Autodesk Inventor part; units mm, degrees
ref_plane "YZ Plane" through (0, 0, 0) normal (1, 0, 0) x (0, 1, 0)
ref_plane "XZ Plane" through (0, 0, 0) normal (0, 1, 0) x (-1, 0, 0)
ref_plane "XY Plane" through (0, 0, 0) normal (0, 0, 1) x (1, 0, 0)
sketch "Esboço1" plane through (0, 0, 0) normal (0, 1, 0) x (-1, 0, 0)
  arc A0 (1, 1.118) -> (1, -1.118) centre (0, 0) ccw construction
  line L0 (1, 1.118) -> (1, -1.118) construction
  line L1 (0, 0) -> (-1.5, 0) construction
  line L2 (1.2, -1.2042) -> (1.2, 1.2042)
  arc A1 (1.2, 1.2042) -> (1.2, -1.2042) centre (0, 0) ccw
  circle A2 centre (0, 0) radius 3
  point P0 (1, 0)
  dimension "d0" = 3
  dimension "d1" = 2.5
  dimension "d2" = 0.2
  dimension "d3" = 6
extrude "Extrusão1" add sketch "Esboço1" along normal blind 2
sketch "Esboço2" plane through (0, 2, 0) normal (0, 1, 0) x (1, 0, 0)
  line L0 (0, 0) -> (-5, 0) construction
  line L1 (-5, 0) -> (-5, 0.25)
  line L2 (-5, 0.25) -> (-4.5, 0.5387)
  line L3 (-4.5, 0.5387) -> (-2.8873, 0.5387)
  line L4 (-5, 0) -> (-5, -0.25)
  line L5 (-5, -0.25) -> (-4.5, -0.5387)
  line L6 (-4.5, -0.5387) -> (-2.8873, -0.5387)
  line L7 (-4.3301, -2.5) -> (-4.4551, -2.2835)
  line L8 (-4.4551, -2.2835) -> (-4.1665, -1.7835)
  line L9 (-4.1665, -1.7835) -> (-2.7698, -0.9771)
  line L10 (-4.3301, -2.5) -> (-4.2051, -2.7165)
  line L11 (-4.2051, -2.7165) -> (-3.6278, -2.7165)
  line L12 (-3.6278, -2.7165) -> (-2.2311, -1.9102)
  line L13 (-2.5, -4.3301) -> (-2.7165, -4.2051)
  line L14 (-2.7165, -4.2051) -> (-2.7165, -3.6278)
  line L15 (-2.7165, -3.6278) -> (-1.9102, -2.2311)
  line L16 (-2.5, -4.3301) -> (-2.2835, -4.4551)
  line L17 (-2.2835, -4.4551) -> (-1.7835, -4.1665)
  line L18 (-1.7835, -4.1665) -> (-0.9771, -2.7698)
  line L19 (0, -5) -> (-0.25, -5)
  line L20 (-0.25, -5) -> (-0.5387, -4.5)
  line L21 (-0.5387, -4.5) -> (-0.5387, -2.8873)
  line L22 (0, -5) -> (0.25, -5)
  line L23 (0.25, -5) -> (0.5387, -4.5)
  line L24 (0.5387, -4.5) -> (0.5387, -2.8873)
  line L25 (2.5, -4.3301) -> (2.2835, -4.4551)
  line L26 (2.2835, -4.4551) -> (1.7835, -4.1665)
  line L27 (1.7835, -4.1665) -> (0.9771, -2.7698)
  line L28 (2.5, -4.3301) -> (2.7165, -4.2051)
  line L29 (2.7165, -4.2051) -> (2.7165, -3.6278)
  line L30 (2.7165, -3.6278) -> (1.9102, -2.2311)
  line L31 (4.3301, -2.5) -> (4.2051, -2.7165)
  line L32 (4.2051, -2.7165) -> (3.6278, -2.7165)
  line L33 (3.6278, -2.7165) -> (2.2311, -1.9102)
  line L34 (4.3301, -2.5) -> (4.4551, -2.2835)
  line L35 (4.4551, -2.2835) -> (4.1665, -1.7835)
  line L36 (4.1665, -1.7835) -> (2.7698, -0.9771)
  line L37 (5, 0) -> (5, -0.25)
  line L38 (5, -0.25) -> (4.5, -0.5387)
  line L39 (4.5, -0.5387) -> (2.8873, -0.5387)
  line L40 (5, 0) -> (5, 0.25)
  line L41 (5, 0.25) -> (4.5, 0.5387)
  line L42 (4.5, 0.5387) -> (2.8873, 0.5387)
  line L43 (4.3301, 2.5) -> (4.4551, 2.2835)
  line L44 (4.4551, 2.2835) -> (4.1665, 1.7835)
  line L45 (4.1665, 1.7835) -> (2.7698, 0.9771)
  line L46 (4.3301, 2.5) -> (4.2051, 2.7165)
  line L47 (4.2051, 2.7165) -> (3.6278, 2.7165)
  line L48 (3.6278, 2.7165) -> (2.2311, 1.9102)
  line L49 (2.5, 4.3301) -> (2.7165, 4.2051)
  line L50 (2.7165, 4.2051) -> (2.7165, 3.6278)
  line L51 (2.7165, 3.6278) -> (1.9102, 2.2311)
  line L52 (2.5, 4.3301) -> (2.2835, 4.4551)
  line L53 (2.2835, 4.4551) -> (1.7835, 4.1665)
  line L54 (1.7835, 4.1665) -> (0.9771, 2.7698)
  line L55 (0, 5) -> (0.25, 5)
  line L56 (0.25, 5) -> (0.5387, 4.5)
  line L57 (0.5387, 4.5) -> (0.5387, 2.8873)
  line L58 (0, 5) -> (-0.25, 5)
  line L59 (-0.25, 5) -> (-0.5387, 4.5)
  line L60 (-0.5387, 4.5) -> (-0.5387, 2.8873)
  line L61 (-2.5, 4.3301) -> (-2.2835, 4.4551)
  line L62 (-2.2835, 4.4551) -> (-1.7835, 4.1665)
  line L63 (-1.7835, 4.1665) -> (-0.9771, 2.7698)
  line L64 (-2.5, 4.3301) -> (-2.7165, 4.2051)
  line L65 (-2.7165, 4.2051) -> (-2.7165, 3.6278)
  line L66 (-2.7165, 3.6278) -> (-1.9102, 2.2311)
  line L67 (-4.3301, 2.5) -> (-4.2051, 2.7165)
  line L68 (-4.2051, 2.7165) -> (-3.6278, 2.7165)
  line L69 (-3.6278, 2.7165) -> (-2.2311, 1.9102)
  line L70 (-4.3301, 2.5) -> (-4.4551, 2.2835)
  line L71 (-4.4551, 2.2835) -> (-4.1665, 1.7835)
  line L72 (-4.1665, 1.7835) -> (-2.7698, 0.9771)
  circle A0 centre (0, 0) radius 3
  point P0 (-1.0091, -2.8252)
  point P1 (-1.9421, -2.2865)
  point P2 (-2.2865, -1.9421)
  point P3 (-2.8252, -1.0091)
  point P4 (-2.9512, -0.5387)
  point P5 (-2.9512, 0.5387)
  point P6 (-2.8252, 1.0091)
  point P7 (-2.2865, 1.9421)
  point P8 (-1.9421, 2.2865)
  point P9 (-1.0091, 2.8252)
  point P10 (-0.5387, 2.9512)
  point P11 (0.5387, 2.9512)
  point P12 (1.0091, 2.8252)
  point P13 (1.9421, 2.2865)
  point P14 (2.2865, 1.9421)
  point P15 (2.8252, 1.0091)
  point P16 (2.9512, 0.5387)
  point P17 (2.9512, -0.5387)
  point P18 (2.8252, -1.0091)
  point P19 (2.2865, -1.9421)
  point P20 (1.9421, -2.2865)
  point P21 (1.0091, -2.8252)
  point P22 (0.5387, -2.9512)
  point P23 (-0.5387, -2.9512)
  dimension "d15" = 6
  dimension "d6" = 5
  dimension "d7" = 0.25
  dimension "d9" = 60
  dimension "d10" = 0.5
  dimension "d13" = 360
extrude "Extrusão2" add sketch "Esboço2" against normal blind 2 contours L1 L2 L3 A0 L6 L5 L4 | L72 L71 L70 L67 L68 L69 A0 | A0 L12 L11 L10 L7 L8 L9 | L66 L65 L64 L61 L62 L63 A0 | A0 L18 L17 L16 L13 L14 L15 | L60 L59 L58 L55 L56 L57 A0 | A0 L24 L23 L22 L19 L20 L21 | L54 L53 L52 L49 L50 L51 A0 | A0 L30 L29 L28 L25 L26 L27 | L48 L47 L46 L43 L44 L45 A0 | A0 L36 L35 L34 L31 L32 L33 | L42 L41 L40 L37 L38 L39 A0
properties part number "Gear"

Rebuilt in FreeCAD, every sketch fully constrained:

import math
import FreeCAD as App
import Part
import Sketcher
from FreeCAD import Vector
Q = App.Units.Quantity

doc = App.newDocument("Part")
body = doc.addObject("PartDesign::Body", "Body")

# Sketch on XZ plane
sketch1 = body.newObject("Sketcher::SketchObject", "Sketch")
sketch1.AttachmentSupport = (doc.getObject("XZ_Plane"), [""])
sketch1.MapMode = "FlatFace"
sketch1.addGeometry([
    Part.Circle(Vector(0, 0, 0), Vector(0, 0, 1), 3),
    Part.LineSegment(Vector(-1.2, 1.2, 0), Vector(-1.2, -1.2, 0)),
    Part.ArcOfCircle(Part.Circle(Vector(0, 0, 0), Vector(0, 0, 1), 1.7), math.radians(-135), math.radians(135)),
], False)
sketch1.addConstraint([
    Sketcher.Constraint("Coincident", 1, 1, 2, 2),
    Sketcher.Constraint("Coincident", 2, 1, 1, 2),
    Sketcher.Constraint("Vertical", 1),
    Sketcher.Constraint("Coincident", 0, 3, -1, 1),
    Sketcher.Constraint("Coincident", 2, 3, -1, 1),
    Sketcher.Constraint("Diameter", 0, Q("6 mm")),
    Sketcher.Constraint("Radius", 2, Q("1.7 mm")),
    Sketcher.Constraint("DistanceX", 1, 1, -1, 1, Q("1.2 mm")),
])
pad1 = body.newObject("PartDesign::Pad", "Pad")
pad1.Profile = sketch1
pad1.Length = 2
pad1.Reversed = True

# Sketch on XZ plane
sketch2 = body.newObject("Sketcher::SketchObject", "Sketch001")
sketch2.AttachmentSupport = (doc.getObject("XZ_Plane"), [""])
sketch2.MapMode = "FlatFace"
sketch2.AttachmentOffset = App.Placement(Vector(0, 0, -2), App.Rotation())
sketch2.addGeometry([
    Part.LineSegment(Vector(-5, -0.25, 0), Vector(-5, 0.25, 0)),  # 0
    Part.LineSegment(Vector(-5, 0.25, 0), Vector(-4.5, 0.54, 0)),  # 1
    Part.LineSegment(Vector(-4.5, 0.54, 0), Vector(-2.95, 0.54, 0)),  # 2
    Part.ArcOfCircle(Part.Circle(Vector(0, 0, 0), Vector(0, 0, 1), 3), math.radians(170), math.radians(190)),  # 3
    Part.LineSegment(Vector(-2.95, -0.54, 0), Vector(-4.5, -0.54, 0)),  # 4
    Part.LineSegment(Vector(-4.5, -0.54, 0), Vector(-5, -0.25, 0)),  # 5
    Part.LineSegment(Vector(-4.17, -1.78, 0), Vector(-2.83, -1.01, 0)),  # 6
    Part.ArcOfCircle(Part.Circle(Vector(0, 0, 0), Vector(0, 0, 1), 3), math.radians(-160), math.radians(-140)),  # 7
    Part.LineSegment(Vector(-2.29, -1.94, 0), Vector(-3.63, -2.72, 0)),  # 8
    Part.LineSegment(Vector(-3.63, -2.72, 0), Vector(-4.21, -2.72, 0)),  # 9
    Part.LineSegment(Vector(-4.21, -2.72, 0), Vector(-4.46, -2.28, 0)),  # 10
    Part.LineSegment(Vector(-4.46, -2.28, 0), Vector(-4.17, -1.78, 0)),  # 11
    Part.ArcOfCircle(Part.Circle(Vector(0, 0, 0), Vector(0, 0, 1), 3), math.radians(140), math.radians(160)),  # 12
    Part.LineSegment(Vector(-2.83, 1.01, 0), Vector(-4.17, 1.78, 0)),  # 13
    Part.LineSegment(Vector(-4.17, 1.78, 0), Vector(-4.46, 2.28, 0)),  # 14
    Part.LineSegment(Vector(-4.46, 2.28, 0), Vector(-4.21, 2.72, 0)),  # 15
    Part.LineSegment(Vector(-4.21, 2.72, 0), Vector(-3.63, 2.72, 0)),  # 16
    Part.LineSegment(Vector(-3.63, 2.72, 0), Vector(-2.29, 1.94, 0)),  # 17
    Part.LineSegment(Vector(-2.72, -3.63, 0), Vector(-1.94, -2.29, 0)),  # 18
    Part.ArcOfCircle(Part.Circle(Vector(0, 0, 0), Vector(0, 0, 1), 3), math.radians(-130), math.radians(-110)),  # 19
    Part.LineSegment(Vector(-1.01, -2.83, 0), Vector(-1.78, -4.17, 0)),  # 20
    Part.LineSegment(Vector(-1.78, -4.17, 0), Vector(-2.28, -4.46, 0)),  # 21
    Part.LineSegment(Vector(-2.28, -4.46, 0), Vector(-2.72, -4.21, 0)),  # 22
    Part.LineSegment(Vector(-2.72, -4.21, 0), Vector(-2.72, -3.63, 0)),  # 23
    Part.ArcOfCircle(Part.Circle(Vector(0, 0, 0), Vector(0, 0, 1), 3), math.radians(110), math.radians(130)),  # 24
    Part.LineSegment(Vector(-1.94, 2.29, 0), Vector(-2.72, 3.63, 0)),  # 25
    Part.LineSegment(Vector(-2.72, 3.63, 0), Vector(-2.72, 4.21, 0)),  # 26
    Part.LineSegment(Vector(-2.72, 4.21, 0), Vector(-2.28, 4.46, 0)),  # 27
    Part.LineSegment(Vector(-2.28, 4.46, 0), Vector(-1.78, 4.17, 0)),  # 28
    Part.LineSegment(Vector(-1.78, 4.17, 0), Vector(-1.01, 2.83, 0)),  # 29
    Part.LineSegment(Vector(-0.54, -4.5, 0), Vector(-0.54, -2.95, 0)),  # 30
    Part.ArcOfCircle(Part.Circle(Vector(0, 0, 0), Vector(0, 0, 1), 3), math.radians(-100), math.radians(-80)),  # 31
    Part.LineSegment(Vector(0.54, -2.95, 0), Vector(0.54, -4.5, 0)),  # 32
    Part.LineSegment(Vector(0.54, -4.5, 0), Vector(0.25, -5, 0)),  # 33
    Part.LineSegment(Vector(0.25, -5, 0), Vector(-0.25, -5, 0)),  # 34
    Part.LineSegment(Vector(-0.25, -5, 0), Vector(-0.54, -4.5, 0)),  # 35
    Part.ArcOfCircle(Part.Circle(Vector(0, 0, 0), Vector(0, 0, 1), 3), math.radians(80), math.radians(100)),  # 36
    Part.LineSegment(Vector(-0.54, 2.95, 0), Vector(-0.54, 4.5, 0)),  # 37
    Part.LineSegment(Vector(-0.54, 4.5, 0), Vector(-0.25, 5, 0)),  # 38
    Part.LineSegment(Vector(-0.25, 5, 0), Vector(0.25, 5, 0)),  # 39
    Part.LineSegment(Vector(0.25, 5, 0), Vector(0.54, 4.5, 0)),  # 40
    Part.LineSegment(Vector(0.54, 4.5, 0), Vector(0.54, 2.95, 0)),  # 41
    Part.LineSegment(Vector(1.78, -4.17, 0), Vector(1.01, -2.83, 0)),  # 42
    Part.ArcOfCircle(Part.Circle(Vector(0, 0, 0), Vector(0, 0, 1), 3), math.radians(-70), math.radians(-50)),  # 43
    Part.LineSegment(Vector(1.94, -2.29, 0), Vector(2.72, -3.63, 0)),  # 44
    Part.LineSegment(Vector(2.72, -3.63, 0), Vector(2.72, -4.21, 0)),  # 45
    Part.LineSegment(Vector(2.72, -4.21, 0), Vector(2.28, -4.46, 0)),  # 46
    Part.LineSegment(Vector(2.28, -4.46, 0), Vector(1.78, -4.17, 0)),  # 47
    Part.ArcOfCircle(Part.Circle(Vector(0, 0, 0), Vector(0, 0, 1), 3), math.radians(50), math.radians(70)),  # 48
    Part.LineSegment(Vector(1.01, 2.83, 0), Vector(1.78, 4.17, 0)),  # 49
    Part.LineSegment(Vector(1.78, 4.17, 0), Vector(2.28, 4.46, 0)),  # 50
    Part.LineSegment(Vector(2.28, 4.46, 0), Vector(2.72, 4.21, 0)),  # 51
    Part.LineSegment(Vector(2.72, 4.21, 0), Vector(2.72, 3.63, 0)),  # 52
    Part.LineSegment(Vector(2.72, 3.63, 0), Vector(1.94, 2.29, 0)),  # 53
    Part.LineSegment(Vector(3.63, -2.72, 0), Vector(2.29, -1.94, 0)),  # 54
    Part.ArcOfCircle(Part.Circle(Vector(0, 0, 0), Vector(0, 0, 1), 3), math.radians(-40), math.radians(-20)),  # 55
    Part.LineSegment(Vector(2.83, -1.01, 0), Vector(4.17, -1.78, 0)),  # 56
    Part.LineSegment(Vector(4.17, -1.78, 0), Vector(4.46, -2.28, 0)),  # 57
    Part.LineSegment(Vector(4.46, -2.28, 0), Vector(4.21, -2.72, 0)),  # 58
    Part.LineSegment(Vector(4.21, -2.72, 0), Vector(3.63, -2.72, 0)),  # 59
    Part.ArcOfCircle(Part.Circle(Vector(0, 0, 0), Vector(0, 0, 1), 3), math.radians(20), math.radians(40)),  # 60
    Part.LineSegment(Vector(2.29, 1.94, 0), Vector(3.63, 2.72, 0)),  # 61
    Part.LineSegment(Vector(3.63, 2.72, 0), Vector(4.21, 2.72, 0)),  # 62
    Part.LineSegment(Vector(4.21, 2.72, 0), Vector(4.46, 2.28, 0)),  # 63
    Part.LineSegment(Vector(4.46, 2.28, 0), Vector(4.17, 1.78, 0)),  # 64
    Part.LineSegment(Vector(4.17, 1.78, 0), Vector(2.83, 1.01, 0)),  # 65
    Part.LineSegment(Vector(4.5, -0.54, 0), Vector(2.95, -0.54, 0)),  # 66
    Part.ArcOfCircle(Part.Circle(Vector(0, 0, 0), Vector(0, 0, 1), 3), math.radians(-10), math.radians(10)),  # 67
    Part.LineSegment(Vector(2.95, 0.54, 0), Vector(4.5, 0.54, 0)),  # 68
    Part.LineSegment(Vector(4.5, 0.54, 0), Vector(5, 0.25, 0)),  # 69
    Part.LineSegment(Vector(5, 0.25, 0), Vector(5, -0.25, 0)),  # 70
    Part.LineSegment(Vector(5, -0.25, 0), Vector(4.5, -0.54, 0)),  # 71
], False)
sketch2.addConstraint([
    Sketcher.Constraint("Coincident", 0, 2, 1, 1),
    Sketcher.Constraint("Coincident", 1, 2, 2, 1),
    Sketcher.Constraint("Coincident", 2, 2, 3, 1),
    Sketcher.Constraint("Coincident", 3, 2, 4, 1),
    Sketcher.Constraint("Coincident", 4, 2, 5, 1),
    Sketcher.Constraint("Coincident", 5, 2, 0, 1),
    Sketcher.Constraint("Coincident", 6, 2, 7, 1),
    Sketcher.Constraint("Coincident", 7, 2, 8, 1),
    Sketcher.Constraint("Coincident", 8, 2, 9, 1),
    Sketcher.Constraint("Coincident", 9, 2, 10, 1),
    Sketcher.Constraint("Coincident", 10, 2, 11, 1),
    Sketcher.Constraint("Coincident", 11, 2, 6, 1),
    Sketcher.Constraint("Coincident", 12, 2, 13, 1),
    Sketcher.Constraint("Coincident", 13, 2, 14, 1),
    Sketcher.Constraint("Coincident", 14, 2, 15, 1),
    Sketcher.Constraint("Coincident", 15, 2, 16, 1),
    Sketcher.Constraint("Coincident", 16, 2, 17, 1),
    Sketcher.Constraint("Coincident", 17, 2, 12, 1),
    Sketcher.Constraint("Coincident", 18, 2, 19, 1),
    Sketcher.Constraint("Coincident", 19, 2, 20, 1),
    Sketcher.Constraint("Coincident", 20, 2, 21, 1),
    Sketcher.Constraint("Coincident", 21, 2, 22, 1),
    Sketcher.Constraint("Coincident", 22, 2, 23, 1),
    Sketcher.Constraint("Coincident", 23, 2, 18, 1),
    Sketcher.Constraint("Coincident", 24, 2, 25, 1),
    Sketcher.Constraint("Coincident", 25, 2, 26, 1),
    Sketcher.Constraint("Coincident", 26, 2, 27, 1),
    Sketcher.Constraint("Coincident", 27, 2, 28, 1),
    Sketcher.Constraint("Coincident", 28, 2, 29, 1),
    Sketcher.Constraint("Coincident", 29, 2, 24, 1),
    Sketcher.Constraint("Coincident", 30, 2, 31, 1),
    Sketcher.Constraint("Coincident", 31, 2, 32, 1),
    Sketcher.Constraint("Coincident", 32, 2, 33, 1),
    Sketcher.Constraint("Coincident", 33, 2, 34, 1),
    Sketcher.Constraint("Coincident", 34, 2, 35, 1),
    Sketcher.Constraint("Coincident", 35, 2, 30, 1),
    Sketcher.Constraint("Coincident", 36, 2, 37, 1),
    Sketcher.Constraint("Coincident", 37, 2, 38, 1),
    Sketcher.Constraint("Coincident", 38, 2, 39, 1),
    Sketcher.Constraint("Coincident", 39, 2, 40, 1),
    Sketcher.Constraint("Coincident", 40, 2, 41, 1),
    Sketcher.Constraint("Coincident", 41, 2, 36, 1),
    Sketcher.Constraint("Coincident", 42, 2, 43, 1),
    Sketcher.Constraint("Coincident", 43, 2, 44, 1),
    Sketcher.Constraint("Coincident", 44, 2, 45, 1),
    Sketcher.Constraint("Coincident", 45, 2, 46, 1),
    Sketcher.Constraint("Coincident", 46, 2, 47, 1),
    Sketcher.Constraint("Coincident", 47, 2, 42, 1),
    Sketcher.Constraint("Coincident", 48, 2, 49, 1),
    Sketcher.Constraint("Coincident", 49, 2, 50, 1),
    Sketcher.Constraint("Coincident", 50, 2, 51, 1),
    Sketcher.Constraint("Coincident", 51, 2, 52, 1),
    Sketcher.Constraint("Coincident", 52, 2, 53, 1),
    Sketcher.Constraint("Coincident", 53, 2, 48, 1),
    Sketcher.Constraint("Coincident", 54, 2, 55, 1),
    Sketcher.Constraint("Coincident", 55, 2, 56, 1),
    Sketcher.Constraint("Coincident", 56, 2, 57, 1),
    Sketcher.Constraint("Coincident", 57, 2, 58, 1),
    Sketcher.Constraint("Coincident", 58, 2, 59, 1),
    Sketcher.Constraint("Coincident", 59, 2, 54, 1),
    Sketcher.Constraint("Coincident", 60, 2, 61, 1),
    Sketcher.Constraint("Coincident", 61, 2, 62, 1),
    Sketcher.Constraint("Coincident", 62, 2, 63, 1),
    Sketcher.Constraint("Coincident", 63, 2, 64, 1),
    Sketcher.Constraint("Coincident", 64, 2, 65, 1),
    Sketcher.Constraint("Coincident", 65, 2, 60, 1),
    Sketcher.Constraint("Coincident", 66, 2, 67, 1),
    Sketcher.Constraint("Coincident", 67, 2, 68, 1),
    Sketcher.Constraint("Coincident", 68, 2, 69, 1),
    Sketcher.Constraint("Coincident", 69, 2, 70, 1),
    Sketcher.Constraint("Coincident", 70, 2, 71, 1),
    Sketcher.Constraint("Coincident", 71, 2, 66, 1),
    Sketcher.Constraint("Vertical", 0),
    Sketcher.Constraint("Horizontal", 2),
    Sketcher.Constraint("Horizontal", 4),
    Sketcher.Constraint("Horizontal", 9),
    Sketcher.Constraint("Horizontal", 16),
    Sketcher.Constraint("Vertical", 23),
    Sketcher.Constraint("Vertical", 26),
    Sketcher.Constraint("Vertical", 30),
    Sketcher.Constraint("Vertical", 32),
    Sketcher.Constraint("Horizontal", 34),
    Sketcher.Constraint("Vertical", 37),
    Sketcher.Constraint("Horizontal", 39),
    Sketcher.Constraint("Vertical", 41),
    Sketcher.Constraint("Vertical", 45),
    Sketcher.Constraint("Vertical", 52),
    Sketcher.Constraint("Horizontal", 59),
    Sketcher.Constraint("Horizontal", 62),
    Sketcher.Constraint("Horizontal", 66),
    Sketcher.Constraint("Horizontal", 68),
    Sketcher.Constraint("Vertical", 70),
    Sketcher.Constraint("Coincident", 3, 3, -1, 1),
    Sketcher.Constraint("Coincident", 7, 3, -1, 1),
    Sketcher.Constraint("Coincident", 12, 3, -1, 1),
    Sketcher.Constraint("Coincident", 19, 3, -1, 1),
    Sketcher.Constraint("Coincident", 24, 3, -1, 1),
    Sketcher.Constraint("Coincident", 31, 3, -1, 1),
    Sketcher.Constraint("Coincident", 36, 3, -1, 1),
    Sketcher.Constraint("Coincident", 43, 3, -1, 1),
    Sketcher.Constraint("Coincident", 48, 3, -1, 1),
    Sketcher.Constraint("Coincident", 55, 3, -1, 1),
    Sketcher.Constraint("Coincident", 60, 3, -1, 1),
    Sketcher.Constraint("Coincident", 67, 3, -1, 1),
    Sketcher.Constraint("Equal", 3, 7),
    Sketcher.Constraint("Equal", 7, 12),
    Sketcher.Constraint("Equal", 12, 19),
    Sketcher.Constraint("Equal", 19, 24),
    Sketcher.Constraint("Equal", 24, 31),
    Sketcher.Constraint("Equal", 31, 36),
    Sketcher.Constraint("Equal", 36, 43),
    Sketcher.Constraint("Equal", 43, 48),
    Sketcher.Constraint("Equal", 48, 55),
    Sketcher.Constraint("Equal", 55, 60),
    Sketcher.Constraint("Equal", 60, 67),
    Sketcher.Constraint("Symmetric", 32, 2, 37, 2, -1, 1),
    Sketcher.Constraint("Symmetric", 33, 2, 38, 2, -1, 1),
    Sketcher.Constraint("Symmetric", 35, 2, 40, 2, -1, 1),
    Sketcher.Constraint("Symmetric", 25, 2, 44, 2, -1, 1),
    Sketcher.Constraint("Symmetric", 27, 2, 46, 2, -1, 1),
    Sketcher.Constraint("Symmetric", 28, 2, 47, 2, -1, 1),
    Sketcher.Constraint("Symmetric", 20, 2, 49, 2, -1, 1),
    Sketcher.Constraint("Symmetric", 21, 2, 50, 2, -1, 1),
    Sketcher.Constraint("Symmetric", 22, 2, 51, 2, -1, 1),
    Sketcher.Constraint("Symmetric", 13, 2, 56, 2, -1, 1),
    Sketcher.Constraint("Symmetric", 14, 2, 57, 2, -1, 1),
    Sketcher.Constraint("Symmetric", 15, 2, 58, 2, -1, 1),
    Sketcher.Constraint("Symmetric", 8, 2, 61, 2, -1, 1),
    Sketcher.Constraint("Symmetric", 10, 2, 63, 2, -1, 1),
    Sketcher.Constraint("Symmetric", 11, 2, 64, 2, -1, 1),
    Sketcher.Constraint("Symmetric", 4, 2, 68, 2, -1, 1),
    Sketcher.Constraint("Symmetric", 5, 2, 69, 2, -1, 1),
    Sketcher.Constraint("Symmetric", 1, 2, 71, 2, -1, 1),
    Sketcher.Constraint("Symmetric", 32, 2, 35, 2, -2),
    Sketcher.Constraint("Symmetric", 23, 2, 44, 2, -2),
    Sketcher.Constraint("Symmetric", 21, 2, 46, 2, -2),
    Sketcher.Constraint("Symmetric", 20, 2, 47, 2, -2),
    Sketcher.Constraint("Symmetric", 11, 2, 56, 2, -2),
    Sketcher.Constraint("Symmetric", 10, 2, 57, 2, -2),
    Sketcher.Constraint("Symmetric", 9, 2, 58, 2, -2),
    Sketcher.Constraint("Symmetric", 1, 2, 68, 2, -2),
    Sketcher.Constraint("Parallel", 1, 6),
    Sketcher.Constraint("Parallel", 6, 8),
    Sketcher.Constraint("Perpendicular", 8, 10),
    Sketcher.Constraint("Perpendicular", 5, 11),
    Sketcher.Constraint("Perpendicular", 11, 13),
    Sketcher.Constraint("Parallel", 10, 14),
    Sketcher.Constraint("Perpendicular", 15, 17),
    Sketcher.Constraint("Perpendicular", 17, 18),
    Sketcher.Constraint("Parallel", 18, 20),
    Sketcher.Constraint("Perpendicular", 14, 21),
    Sketcher.Constraint("Perpendicular", 20, 22),
    Sketcher.Constraint("Perpendicular", 21, 25),
    Sketcher.Constraint("Perpendicular", 25, 27),
    Sketcher.Constraint("Perpendicular", 27, 29),
    Sketcher.Constraint("Perpendicular", 28, 33),
    Sketcher.Constraint("Parallel", 29, 35),
    Sketcher.Constraint("Parallel", 35, 40),
    Sketcher.Constraint("Parallel", 40, 42),
    Sketcher.Constraint("Parallel", 42, 44),
    Sketcher.Constraint("Perpendicular", 44, 46),
    Sketcher.Constraint("Perpendicular", 47, 49),
    Sketcher.Constraint("Perpendicular", 51, 53),
    Sketcher.Constraint("Perpendicular", 53, 54),
    Sketcher.Constraint("Parallel", 54, 56),
    Sketcher.Constraint("Perpendicular", 57, 61),
    Sketcher.Constraint("Perpendicular", 61, 63),
    Sketcher.Constraint("Perpendicular", 63, 65),
    Sketcher.Constraint("Parallel", 65, 71),
    Sketcher.Constraint("Horizontal", 25, 2, 52, 2),
    Sketcher.Constraint("Horizontal", 7, 2, 54, 2),
    Sketcher.Constraint("Horizontal", 17, 2, 60, 2),
    Sketcher.Constraint("Equal", 39, 0),
    Sketcher.Constraint("Equal", 62, 23),
    Sketcher.Constraint("Equal", 68, 30),
    Sketcher.Constraint("Equal", 6, 8),
    Sketcher.Constraint("Equal", 5, 11),
    Sketcher.Constraint("Equal", 17, 18),
    Sketcher.Constraint("Equal", 18, 20),
    Sketcher.Constraint("Equal", 14, 21),
    Sketcher.Constraint("Equal", 15, 22),
    Sketcher.Constraint("Equal", 28, 33),
    Sketcher.Constraint("Radius", 3, Q("3 mm")),
    Sketcher.Constraint("Angle", 29, Q("-59.9995 deg")),
    Sketcher.Constraint("DistanceX", 34, 2, 34, 1, Q("0.5 mm")),
    Sketcher.Constraint("DistanceX", 0, 2, -1, 1, Q("5 mm")),
    Sketcher.Constraint("Distance", 10, Q("0.5 mm")),
    Sketcher.Constraint("DistanceX", 1, 2, -1, 1, Q("4.5 mm")),
    Sketcher.Constraint("DistanceX", 9, 2, 9, 1, Q("0.5773 mm")),
    Sketcher.Constraint("DistanceX", 9, 2, -1, 1, Q("4.205 mm")),
])
pad2 = body.newObject("PartDesign::Pad", "Pad001")
pad2.Profile = sketch2
pad2.Length = 2

doc.recompute()
